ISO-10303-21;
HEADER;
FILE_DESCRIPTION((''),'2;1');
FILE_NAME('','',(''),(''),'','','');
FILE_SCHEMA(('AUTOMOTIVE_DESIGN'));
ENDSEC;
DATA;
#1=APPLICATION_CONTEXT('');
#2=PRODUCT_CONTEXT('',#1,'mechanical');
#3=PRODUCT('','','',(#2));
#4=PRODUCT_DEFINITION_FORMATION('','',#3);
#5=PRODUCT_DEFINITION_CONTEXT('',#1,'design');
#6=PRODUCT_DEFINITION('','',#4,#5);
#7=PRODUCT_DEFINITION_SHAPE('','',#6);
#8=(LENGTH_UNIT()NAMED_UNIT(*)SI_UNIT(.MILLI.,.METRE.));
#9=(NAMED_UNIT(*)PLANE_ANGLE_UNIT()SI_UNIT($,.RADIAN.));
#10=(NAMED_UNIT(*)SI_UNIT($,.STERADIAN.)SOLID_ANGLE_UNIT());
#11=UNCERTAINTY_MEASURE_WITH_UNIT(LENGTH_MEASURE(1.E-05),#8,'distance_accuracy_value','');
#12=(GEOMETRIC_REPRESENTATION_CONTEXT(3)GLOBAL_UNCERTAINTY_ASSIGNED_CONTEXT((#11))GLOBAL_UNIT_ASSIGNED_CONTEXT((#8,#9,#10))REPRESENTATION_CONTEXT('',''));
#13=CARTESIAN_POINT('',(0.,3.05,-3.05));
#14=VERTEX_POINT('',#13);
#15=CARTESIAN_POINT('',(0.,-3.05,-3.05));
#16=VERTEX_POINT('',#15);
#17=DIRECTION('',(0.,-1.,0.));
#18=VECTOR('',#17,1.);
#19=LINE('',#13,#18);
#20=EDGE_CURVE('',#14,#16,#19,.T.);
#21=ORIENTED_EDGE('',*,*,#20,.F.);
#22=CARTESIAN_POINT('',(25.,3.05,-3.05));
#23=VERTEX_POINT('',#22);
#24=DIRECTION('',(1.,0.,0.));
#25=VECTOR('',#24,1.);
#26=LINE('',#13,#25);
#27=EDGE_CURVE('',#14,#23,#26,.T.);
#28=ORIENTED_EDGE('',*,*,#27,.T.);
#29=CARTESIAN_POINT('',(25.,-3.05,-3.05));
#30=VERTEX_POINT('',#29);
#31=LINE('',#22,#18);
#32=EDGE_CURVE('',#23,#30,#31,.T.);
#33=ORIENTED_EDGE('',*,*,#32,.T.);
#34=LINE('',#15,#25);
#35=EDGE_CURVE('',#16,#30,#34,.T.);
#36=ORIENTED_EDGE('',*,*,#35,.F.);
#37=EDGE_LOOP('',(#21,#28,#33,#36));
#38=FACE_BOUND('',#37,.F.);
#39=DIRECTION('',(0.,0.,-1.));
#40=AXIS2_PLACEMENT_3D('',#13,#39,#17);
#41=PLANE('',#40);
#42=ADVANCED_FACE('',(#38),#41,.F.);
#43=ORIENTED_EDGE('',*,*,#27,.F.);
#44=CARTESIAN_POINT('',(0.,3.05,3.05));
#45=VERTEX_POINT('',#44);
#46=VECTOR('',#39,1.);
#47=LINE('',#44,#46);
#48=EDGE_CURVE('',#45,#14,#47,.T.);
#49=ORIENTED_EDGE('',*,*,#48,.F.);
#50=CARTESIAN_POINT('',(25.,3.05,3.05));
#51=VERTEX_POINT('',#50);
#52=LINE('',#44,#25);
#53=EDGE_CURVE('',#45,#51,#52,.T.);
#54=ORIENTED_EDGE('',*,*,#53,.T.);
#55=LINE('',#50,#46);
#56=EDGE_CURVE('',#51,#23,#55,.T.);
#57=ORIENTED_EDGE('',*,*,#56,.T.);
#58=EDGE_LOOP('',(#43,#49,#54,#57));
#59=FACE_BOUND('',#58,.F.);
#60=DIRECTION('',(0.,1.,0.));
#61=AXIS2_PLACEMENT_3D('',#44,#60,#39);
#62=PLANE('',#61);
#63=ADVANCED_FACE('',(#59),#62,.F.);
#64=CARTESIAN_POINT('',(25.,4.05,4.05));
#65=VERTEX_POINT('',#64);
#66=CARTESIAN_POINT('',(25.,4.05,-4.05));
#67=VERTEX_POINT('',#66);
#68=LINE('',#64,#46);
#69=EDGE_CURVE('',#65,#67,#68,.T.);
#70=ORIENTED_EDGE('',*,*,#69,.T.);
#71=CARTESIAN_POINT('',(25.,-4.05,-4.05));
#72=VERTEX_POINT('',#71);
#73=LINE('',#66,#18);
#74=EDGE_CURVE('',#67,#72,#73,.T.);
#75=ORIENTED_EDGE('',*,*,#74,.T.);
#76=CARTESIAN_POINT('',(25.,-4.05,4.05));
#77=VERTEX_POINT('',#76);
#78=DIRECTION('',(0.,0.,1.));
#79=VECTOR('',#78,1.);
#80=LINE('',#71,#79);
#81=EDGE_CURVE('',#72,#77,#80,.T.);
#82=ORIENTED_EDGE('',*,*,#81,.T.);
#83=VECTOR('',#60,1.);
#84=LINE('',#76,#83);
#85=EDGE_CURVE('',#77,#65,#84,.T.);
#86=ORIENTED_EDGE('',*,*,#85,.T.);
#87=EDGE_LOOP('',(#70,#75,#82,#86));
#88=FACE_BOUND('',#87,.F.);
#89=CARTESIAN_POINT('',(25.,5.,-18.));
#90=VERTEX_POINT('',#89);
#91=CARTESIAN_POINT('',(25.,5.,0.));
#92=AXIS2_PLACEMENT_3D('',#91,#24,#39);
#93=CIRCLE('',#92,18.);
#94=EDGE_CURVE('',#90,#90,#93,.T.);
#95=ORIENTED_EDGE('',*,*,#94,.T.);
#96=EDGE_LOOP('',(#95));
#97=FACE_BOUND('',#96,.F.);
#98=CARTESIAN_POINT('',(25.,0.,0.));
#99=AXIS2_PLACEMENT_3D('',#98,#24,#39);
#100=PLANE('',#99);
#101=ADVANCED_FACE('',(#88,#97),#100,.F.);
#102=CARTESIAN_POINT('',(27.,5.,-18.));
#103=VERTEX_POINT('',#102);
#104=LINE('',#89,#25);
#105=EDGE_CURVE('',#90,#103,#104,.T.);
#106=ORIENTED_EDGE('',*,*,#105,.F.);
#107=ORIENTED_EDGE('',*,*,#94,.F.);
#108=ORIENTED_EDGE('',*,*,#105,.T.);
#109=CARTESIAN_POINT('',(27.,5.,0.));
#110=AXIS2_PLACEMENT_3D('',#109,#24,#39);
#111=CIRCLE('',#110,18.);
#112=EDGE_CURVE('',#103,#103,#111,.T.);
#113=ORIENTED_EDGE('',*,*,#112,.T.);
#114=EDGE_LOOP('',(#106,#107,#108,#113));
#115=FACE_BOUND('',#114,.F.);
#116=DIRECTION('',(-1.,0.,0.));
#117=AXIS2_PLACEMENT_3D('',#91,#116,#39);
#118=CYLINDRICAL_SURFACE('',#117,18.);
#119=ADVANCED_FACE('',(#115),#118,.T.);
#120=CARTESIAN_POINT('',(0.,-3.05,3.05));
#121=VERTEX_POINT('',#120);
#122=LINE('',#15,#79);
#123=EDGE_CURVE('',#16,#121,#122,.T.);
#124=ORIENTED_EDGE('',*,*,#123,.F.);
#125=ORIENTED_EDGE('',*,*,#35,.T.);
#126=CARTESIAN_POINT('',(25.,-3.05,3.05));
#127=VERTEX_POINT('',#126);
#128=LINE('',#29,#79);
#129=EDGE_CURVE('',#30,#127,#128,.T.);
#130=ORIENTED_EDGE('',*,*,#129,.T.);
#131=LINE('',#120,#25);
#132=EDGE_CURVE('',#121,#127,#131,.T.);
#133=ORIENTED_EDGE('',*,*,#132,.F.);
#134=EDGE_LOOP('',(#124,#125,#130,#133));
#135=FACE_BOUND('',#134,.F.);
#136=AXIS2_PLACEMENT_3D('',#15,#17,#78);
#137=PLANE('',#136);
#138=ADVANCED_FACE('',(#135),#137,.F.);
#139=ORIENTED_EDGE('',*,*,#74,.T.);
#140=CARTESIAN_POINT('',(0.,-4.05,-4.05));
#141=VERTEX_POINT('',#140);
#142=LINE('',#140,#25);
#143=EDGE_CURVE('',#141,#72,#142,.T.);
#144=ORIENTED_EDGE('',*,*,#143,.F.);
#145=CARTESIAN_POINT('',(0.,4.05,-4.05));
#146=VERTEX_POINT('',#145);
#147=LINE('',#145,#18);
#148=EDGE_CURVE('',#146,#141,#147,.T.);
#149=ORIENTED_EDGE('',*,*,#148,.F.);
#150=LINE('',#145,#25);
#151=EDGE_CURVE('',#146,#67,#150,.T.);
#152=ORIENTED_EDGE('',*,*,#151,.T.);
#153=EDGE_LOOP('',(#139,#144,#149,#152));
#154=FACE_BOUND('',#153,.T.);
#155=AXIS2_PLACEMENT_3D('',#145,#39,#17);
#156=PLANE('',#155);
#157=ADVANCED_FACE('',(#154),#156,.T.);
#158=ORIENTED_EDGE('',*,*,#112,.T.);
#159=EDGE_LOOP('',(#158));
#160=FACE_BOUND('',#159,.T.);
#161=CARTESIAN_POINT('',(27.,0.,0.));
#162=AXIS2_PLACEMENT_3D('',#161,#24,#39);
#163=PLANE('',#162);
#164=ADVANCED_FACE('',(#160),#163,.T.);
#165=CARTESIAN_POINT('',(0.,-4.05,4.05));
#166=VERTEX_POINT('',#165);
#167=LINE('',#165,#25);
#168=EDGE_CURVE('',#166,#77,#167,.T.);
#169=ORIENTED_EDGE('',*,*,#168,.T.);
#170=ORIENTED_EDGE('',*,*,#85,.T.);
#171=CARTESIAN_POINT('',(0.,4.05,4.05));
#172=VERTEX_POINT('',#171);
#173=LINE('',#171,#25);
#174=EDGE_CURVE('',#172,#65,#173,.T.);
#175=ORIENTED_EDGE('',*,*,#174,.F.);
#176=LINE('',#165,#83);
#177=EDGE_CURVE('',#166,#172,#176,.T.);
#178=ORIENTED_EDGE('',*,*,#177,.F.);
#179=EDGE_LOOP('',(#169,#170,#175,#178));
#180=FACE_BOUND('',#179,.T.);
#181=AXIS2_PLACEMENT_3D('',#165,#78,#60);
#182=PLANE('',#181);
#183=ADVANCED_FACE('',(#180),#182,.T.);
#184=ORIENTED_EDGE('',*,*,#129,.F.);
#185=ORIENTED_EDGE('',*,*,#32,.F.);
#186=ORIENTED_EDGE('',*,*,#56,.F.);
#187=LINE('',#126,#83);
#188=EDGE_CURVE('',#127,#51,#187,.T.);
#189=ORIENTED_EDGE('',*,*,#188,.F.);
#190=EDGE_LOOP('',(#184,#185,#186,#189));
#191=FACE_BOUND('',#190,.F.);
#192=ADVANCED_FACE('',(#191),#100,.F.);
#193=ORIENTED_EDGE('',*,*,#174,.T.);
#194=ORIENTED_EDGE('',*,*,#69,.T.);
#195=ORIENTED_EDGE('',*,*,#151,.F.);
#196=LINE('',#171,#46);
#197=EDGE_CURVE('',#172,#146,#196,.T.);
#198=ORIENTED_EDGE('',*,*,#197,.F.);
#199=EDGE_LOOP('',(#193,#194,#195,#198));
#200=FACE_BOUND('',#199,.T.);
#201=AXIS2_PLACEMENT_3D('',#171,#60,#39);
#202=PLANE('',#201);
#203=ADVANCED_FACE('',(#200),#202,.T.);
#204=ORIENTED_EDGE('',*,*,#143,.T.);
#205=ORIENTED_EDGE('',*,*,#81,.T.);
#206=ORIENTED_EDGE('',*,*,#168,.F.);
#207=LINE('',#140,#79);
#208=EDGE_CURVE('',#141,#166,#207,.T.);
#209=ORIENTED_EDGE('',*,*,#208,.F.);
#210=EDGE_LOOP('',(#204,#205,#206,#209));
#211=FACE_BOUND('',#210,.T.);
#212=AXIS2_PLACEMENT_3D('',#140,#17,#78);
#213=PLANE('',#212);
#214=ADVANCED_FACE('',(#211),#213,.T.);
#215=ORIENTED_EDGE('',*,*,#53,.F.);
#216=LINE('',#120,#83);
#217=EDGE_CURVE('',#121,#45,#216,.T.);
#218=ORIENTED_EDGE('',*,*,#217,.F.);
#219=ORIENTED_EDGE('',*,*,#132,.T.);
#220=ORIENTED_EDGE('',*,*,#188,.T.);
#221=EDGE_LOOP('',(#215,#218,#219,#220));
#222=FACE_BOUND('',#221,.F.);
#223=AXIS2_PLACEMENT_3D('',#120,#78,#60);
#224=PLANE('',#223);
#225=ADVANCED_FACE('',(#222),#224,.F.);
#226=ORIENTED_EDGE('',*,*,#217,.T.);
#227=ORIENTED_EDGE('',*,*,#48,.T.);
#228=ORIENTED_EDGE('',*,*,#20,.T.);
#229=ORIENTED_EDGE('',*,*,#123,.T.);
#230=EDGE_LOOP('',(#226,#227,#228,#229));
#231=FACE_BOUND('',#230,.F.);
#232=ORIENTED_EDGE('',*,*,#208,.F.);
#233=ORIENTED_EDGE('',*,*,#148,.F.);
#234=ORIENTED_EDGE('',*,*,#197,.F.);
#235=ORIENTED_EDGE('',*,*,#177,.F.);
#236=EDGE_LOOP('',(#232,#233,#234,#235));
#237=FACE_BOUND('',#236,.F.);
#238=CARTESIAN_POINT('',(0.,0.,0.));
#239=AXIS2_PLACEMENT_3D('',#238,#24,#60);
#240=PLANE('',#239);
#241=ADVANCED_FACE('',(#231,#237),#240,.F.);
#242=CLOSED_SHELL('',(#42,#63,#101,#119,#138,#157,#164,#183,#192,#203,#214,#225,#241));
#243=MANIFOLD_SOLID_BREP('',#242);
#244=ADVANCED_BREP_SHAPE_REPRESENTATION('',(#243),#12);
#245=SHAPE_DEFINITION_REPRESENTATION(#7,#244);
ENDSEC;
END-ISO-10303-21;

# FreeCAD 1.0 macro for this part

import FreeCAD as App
import Part
import Sketcher
Q = App.Units.Quantity


def add_polygon(sketch, points):
    """Adds a closed chain of lines whose ends are joined by coincident constraints."""
    first, n = sketch.GeometryCount, len(points)
    for a, b in zip(points, points[1:] + points[:1]):
        sketch.addGeometry(Part.LineSegment(App.Vector(*a, 0), App.Vector(*b, 0)), False)
    for i in range(n):
        sketch.addConstraint(Sketcher.Constraint("Coincident", first + i, 2, first + (i + 1) % n, 1))

doc = App.newDocument("Part")
params = doc.addObject("Spreadsheet::Sheet", "Params")
for row, (alias, value) in enumerate([
    ("sketch1_width", "8.1 mm"),
    ("sketch1_width2", "6.1 mm"),
    ("pad1_length", "25 mm"),
    ("sketch2_diameter", "36 mm"),
    ("pad2_length", "2 mm"),
], start=1):
    params.set(f"A{row}", alias)
    params.set(f"B{row}", "=" + value)
    params.setAlias(f"B{row}", alias)

body = doc.addObject("PartDesign::Body", "Body")

# Sketch on YZ plane
sketch1 = doc.addObject("Sketcher::SketchObject", "Sketch")
body.addObject(sketch1)
sketch1.AttachmentSupport = (doc.YZ_Plane, [""])
sketch1.MapMode = "FlatFace"
add_polygon(sketch1, [(-4, -4), (4, -4), (4, 4), (-4, 4)])  # lines 0-3
add_polygon(sketch1, [(3, 3), (3, -3), (-3, -3), (-3, 3)])  # lines 4-7
sketch1.addConstraint(Sketcher.Constraint("Horizontal", 0))
sketch1.addConstraint(Sketcher.Constraint("Vertical", 1))
sketch1.addConstraint(Sketcher.Constraint("Horizontal", 2))
sketch1.addConstraint(Sketcher.Constraint("Vertical", 3))
sketch1.addConstraint(Sketcher.Constraint("Vertical", 4))
sketch1.addConstraint(Sketcher.Constraint("Horizontal", 5))
sketch1.addConstraint(Sketcher.Constraint("Vertical", 6))
sketch1.addConstraint(Sketcher.Constraint("Horizontal", 7))
sketch1.addConstraint(Sketcher.Constraint("Symmetric", 0, 2, 2, 2, -1, 1))
sketch1.addConstraint(Sketcher.Constraint("Symmetric", 4, 2, 6, 2, -1, 1))
sketch1.addConstraint(Sketcher.Constraint("Equal", 2, 1))
sketch1.addConstraint(Sketcher.Constraint("Equal", 7, 4))
sketch1.addConstraint(Sketcher.Constraint("DistanceX", 0, 1, 0, 2, Q("8.1 mm")))
sketch1.addConstraint(Sketcher.Constraint("DistanceX", 5, 2, 5, 1, Q("6.1 mm")))
sketch1.setExpression("Constraints[20]", "Params.sketch1_width")
sketch1.setExpression("Constraints[21]", "Params.sketch1_width2")
pad1 = doc.addObject("PartDesign::Pad", "Pad")
body.addObject(pad1)
pad1.Profile = sketch1
pad1.setExpression("Length", "Params.pad1_length")

# Sketch on YZ plane
sketch2 = doc.addObject("Sketcher::SketchObject", "Sketch001")
body.addObject(sketch2)
sketch2.AttachmentSupport = (doc.YZ_Plane, [""])
sketch2.MapMode = "FlatFace"
sketch2.AttachmentOffset = App.Placement(App.Vector(0, 0, 25), App.Rotation())
sketch2.addGeometry(Part.Circle(App.Vector(5, 0, 0), App.Vector(0, 0, 1), 18), False)
sketch2.addConstraint(Sketcher.Constraint("PointOnObject", 0, 3, -1))
sketch2.addConstraint(Sketcher.Constraint("Diameter", 0, Q("36 mm")))
sketch2.addConstraint(Sketcher.Constraint("DistanceX", -1, 1, 0, 3, Q("5 mm")))
sketch2.setExpression("Constraints[1]", "Params.sketch2_diameter")
pad2 = doc.addObject("PartDesign::Pad", "Pad001")
body.addObject(pad2)
pad2.Profile = sketch2
pad2.setExpression("Length", "Params.pad2_length")

doc.recompute()
